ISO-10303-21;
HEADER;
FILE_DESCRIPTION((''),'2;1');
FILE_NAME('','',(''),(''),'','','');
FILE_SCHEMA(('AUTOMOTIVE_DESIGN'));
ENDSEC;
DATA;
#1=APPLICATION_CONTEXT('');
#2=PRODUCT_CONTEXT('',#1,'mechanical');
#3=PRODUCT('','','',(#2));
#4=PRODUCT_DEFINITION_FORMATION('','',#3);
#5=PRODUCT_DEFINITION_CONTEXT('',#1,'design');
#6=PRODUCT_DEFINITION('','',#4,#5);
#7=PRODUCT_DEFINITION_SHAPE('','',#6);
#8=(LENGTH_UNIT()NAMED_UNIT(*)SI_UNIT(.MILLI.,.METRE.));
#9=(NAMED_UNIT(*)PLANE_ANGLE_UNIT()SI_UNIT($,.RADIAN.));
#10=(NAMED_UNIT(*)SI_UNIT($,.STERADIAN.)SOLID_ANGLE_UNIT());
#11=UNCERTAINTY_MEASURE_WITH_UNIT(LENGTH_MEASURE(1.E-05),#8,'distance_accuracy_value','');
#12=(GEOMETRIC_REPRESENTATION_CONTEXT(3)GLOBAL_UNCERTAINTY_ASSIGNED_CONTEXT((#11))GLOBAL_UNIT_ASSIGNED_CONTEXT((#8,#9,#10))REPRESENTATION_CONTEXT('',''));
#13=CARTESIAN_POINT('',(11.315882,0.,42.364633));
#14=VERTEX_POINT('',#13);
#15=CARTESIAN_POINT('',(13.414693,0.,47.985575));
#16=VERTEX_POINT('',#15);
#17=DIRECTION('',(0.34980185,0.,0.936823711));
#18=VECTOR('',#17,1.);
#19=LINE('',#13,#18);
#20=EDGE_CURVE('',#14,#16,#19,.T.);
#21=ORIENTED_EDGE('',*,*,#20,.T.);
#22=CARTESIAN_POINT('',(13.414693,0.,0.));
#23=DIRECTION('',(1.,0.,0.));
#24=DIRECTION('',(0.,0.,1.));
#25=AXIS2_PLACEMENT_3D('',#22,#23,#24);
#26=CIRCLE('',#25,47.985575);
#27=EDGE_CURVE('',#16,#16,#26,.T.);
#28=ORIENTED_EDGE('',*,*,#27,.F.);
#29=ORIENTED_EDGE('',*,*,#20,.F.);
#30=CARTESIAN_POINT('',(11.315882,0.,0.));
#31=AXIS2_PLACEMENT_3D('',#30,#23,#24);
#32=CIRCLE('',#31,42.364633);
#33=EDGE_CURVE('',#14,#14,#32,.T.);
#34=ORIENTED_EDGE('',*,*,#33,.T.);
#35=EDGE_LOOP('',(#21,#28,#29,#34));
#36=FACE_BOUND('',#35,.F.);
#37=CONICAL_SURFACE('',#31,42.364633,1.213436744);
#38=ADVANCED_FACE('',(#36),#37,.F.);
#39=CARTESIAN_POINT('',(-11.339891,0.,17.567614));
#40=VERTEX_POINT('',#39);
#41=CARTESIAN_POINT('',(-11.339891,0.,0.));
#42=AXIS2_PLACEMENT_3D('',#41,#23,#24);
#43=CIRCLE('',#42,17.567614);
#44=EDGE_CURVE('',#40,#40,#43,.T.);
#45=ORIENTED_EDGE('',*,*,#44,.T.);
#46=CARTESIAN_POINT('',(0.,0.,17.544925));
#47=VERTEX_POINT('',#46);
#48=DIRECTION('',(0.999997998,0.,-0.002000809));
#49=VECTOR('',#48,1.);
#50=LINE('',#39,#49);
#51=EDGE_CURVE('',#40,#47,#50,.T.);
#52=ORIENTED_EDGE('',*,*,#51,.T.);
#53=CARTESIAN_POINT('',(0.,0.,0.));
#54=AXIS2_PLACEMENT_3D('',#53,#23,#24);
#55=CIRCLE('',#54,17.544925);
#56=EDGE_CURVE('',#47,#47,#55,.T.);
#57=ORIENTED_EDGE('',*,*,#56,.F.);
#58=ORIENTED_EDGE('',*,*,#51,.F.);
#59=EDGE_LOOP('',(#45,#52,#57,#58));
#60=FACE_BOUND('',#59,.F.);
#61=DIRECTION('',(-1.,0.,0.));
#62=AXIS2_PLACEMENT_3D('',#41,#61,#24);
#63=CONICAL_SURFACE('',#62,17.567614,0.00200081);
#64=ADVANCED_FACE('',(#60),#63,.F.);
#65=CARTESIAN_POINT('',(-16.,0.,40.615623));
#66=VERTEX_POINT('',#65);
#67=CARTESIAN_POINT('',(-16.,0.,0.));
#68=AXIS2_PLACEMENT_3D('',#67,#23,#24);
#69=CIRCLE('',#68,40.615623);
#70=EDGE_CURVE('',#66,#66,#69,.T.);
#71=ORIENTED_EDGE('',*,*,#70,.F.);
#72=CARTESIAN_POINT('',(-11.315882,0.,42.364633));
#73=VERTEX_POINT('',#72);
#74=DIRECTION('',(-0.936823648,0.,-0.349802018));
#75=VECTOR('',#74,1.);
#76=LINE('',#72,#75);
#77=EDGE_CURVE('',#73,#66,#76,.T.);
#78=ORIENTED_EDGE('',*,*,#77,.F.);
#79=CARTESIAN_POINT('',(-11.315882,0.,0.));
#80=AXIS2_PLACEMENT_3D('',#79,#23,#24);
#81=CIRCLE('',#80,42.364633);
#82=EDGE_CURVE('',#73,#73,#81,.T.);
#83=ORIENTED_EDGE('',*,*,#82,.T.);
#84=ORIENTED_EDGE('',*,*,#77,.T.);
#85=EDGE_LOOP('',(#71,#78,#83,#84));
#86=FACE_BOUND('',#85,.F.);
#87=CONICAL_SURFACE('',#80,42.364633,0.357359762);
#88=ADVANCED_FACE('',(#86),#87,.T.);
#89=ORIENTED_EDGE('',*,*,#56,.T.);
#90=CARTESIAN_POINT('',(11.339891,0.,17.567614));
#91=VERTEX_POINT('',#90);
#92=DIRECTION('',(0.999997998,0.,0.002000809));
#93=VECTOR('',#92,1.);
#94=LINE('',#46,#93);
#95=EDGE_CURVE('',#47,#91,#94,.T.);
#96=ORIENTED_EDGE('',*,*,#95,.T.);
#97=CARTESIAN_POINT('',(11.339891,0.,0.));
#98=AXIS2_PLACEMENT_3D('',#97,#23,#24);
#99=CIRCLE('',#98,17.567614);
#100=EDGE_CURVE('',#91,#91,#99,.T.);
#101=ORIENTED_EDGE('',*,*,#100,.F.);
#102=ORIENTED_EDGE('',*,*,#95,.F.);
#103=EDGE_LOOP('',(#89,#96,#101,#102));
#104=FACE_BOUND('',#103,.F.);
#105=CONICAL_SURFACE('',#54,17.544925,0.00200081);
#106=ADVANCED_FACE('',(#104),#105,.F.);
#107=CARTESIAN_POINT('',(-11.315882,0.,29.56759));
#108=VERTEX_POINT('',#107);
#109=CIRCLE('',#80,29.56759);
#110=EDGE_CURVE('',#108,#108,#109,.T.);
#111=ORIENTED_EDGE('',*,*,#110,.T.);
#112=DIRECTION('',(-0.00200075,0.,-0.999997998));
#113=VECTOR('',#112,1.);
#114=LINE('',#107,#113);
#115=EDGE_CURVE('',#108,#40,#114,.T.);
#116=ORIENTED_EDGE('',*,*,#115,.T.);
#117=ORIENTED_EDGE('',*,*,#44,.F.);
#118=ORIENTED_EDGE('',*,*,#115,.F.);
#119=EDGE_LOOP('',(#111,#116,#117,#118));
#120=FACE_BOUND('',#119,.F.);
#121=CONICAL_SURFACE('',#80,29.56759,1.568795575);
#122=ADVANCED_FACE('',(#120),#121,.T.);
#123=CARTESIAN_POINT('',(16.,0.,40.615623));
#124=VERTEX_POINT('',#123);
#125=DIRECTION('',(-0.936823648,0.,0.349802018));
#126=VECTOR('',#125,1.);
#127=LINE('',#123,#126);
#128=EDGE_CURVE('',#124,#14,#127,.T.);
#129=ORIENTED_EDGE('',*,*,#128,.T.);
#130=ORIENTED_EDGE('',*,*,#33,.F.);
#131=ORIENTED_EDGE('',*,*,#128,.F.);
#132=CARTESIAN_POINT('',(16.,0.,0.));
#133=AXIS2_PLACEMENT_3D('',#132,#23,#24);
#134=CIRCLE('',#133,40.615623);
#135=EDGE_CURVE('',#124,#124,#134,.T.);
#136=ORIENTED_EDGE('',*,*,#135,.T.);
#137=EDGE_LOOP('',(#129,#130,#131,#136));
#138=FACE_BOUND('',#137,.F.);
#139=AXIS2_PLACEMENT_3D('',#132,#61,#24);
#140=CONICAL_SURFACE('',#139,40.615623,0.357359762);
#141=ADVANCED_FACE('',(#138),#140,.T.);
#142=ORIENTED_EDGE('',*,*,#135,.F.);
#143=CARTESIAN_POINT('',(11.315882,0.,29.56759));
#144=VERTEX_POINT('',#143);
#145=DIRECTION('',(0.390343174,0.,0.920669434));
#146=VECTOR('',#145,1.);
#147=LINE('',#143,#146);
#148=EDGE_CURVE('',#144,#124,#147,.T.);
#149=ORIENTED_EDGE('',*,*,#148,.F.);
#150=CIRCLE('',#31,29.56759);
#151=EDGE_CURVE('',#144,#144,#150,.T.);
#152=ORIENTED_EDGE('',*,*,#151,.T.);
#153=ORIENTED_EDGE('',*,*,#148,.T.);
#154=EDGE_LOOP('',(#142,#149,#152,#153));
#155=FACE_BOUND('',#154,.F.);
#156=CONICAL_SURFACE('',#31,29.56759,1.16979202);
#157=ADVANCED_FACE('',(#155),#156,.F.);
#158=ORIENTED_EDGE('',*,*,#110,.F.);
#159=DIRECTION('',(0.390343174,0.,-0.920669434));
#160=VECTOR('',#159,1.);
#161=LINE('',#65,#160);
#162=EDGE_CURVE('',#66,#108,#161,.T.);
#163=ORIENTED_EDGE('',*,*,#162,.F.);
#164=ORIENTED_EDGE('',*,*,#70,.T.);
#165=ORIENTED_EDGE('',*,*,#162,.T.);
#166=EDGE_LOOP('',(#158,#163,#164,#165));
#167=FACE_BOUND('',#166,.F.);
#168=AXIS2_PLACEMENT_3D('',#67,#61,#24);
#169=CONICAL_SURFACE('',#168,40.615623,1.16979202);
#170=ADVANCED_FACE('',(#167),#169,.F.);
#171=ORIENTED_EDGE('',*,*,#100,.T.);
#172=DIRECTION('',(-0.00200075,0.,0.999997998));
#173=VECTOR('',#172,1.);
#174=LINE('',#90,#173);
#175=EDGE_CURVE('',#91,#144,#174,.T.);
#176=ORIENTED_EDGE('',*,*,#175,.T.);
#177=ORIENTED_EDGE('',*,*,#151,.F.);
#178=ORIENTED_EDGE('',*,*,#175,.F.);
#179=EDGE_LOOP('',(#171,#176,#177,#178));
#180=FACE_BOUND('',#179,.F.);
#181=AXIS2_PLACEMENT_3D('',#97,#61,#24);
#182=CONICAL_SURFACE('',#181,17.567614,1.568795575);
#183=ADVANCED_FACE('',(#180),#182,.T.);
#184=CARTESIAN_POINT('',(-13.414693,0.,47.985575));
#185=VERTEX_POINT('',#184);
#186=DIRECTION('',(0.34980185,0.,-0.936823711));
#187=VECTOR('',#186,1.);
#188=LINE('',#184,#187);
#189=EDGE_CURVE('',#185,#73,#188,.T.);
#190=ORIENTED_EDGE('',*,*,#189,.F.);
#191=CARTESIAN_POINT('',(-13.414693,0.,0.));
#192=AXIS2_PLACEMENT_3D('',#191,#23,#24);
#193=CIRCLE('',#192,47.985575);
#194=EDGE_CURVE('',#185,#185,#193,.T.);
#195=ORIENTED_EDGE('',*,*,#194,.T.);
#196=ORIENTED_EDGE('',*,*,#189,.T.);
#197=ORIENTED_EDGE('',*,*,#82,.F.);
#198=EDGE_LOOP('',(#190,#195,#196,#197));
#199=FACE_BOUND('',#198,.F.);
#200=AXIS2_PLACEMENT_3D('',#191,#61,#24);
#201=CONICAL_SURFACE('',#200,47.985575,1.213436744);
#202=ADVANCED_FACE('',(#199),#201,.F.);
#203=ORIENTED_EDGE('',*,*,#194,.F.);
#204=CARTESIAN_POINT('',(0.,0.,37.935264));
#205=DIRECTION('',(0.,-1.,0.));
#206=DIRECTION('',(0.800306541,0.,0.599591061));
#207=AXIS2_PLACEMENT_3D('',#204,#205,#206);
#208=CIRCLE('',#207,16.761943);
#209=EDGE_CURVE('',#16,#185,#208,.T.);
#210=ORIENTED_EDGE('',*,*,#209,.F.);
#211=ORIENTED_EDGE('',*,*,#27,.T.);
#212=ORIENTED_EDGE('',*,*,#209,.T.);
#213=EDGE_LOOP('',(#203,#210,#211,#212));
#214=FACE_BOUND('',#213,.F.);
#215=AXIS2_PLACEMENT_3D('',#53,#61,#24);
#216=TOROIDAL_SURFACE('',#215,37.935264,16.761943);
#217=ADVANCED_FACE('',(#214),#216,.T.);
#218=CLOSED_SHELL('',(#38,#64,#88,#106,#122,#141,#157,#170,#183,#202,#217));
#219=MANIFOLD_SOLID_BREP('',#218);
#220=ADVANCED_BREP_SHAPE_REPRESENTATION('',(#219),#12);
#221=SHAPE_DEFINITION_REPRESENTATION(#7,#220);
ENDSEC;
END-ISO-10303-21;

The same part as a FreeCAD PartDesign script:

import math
import FreeCAD as App
import Part
import Sketcher

V = App.Vector

doc = App.newDocument("Part")
body = doc.addObject("PartDesign::Body", "Body")

# Sketch on XZ plane
sketch1 = body.newObject("Sketcher::SketchObject", "Sketch")
sketch1.AttachmentSupport = (doc.getObject("XZ_Plane"), [""])
sketch1.MapMode = "FlatFace"
sketch1.addGeometry([
    Part.LineSegment(V(11.3, 17.6, 0), V(11.3, 29.6, 0)),  # 0
    Part.LineSegment(V(11.3, 29.6, 0), V(16, 40.6, 0)),  # 1
    Part.LineSegment(V(16, 40.6, 0), V(11.3, 42.4, 0)),  # 2
    Part.LineSegment(V(11.3, 42.4, 0), V(13.4, 48, 0)),  # 3
    Part.ArcOfCircle(Part.Circle(V(0, 37.9, 0), V(0, 0, 1), 16.8), math.radians(37), math.radians(143)),  # 4
    Part.LineSegment(V(-13.4, 48, 0), V(-11.3, 42.4, 0)),  # 5
    Part.LineSegment(V(-11.3, 42.4, 0), V(-16, 40.6, 0)),  # 6
    Part.LineSegment(V(-16, 40.6, 0), V(-11.3, 29.6, 0)),  # 7
    Part.LineSegment(V(-11.3, 29.6, 0), V(-11.3, 17.6, 0)),  # 8
    Part.LineSegment(V(-11.3, 17.6, 0), V(0, 17.5, 0)),  # 9
    Part.LineSegment(V(0, 17.5, 0), V(11.3, 17.6, 0)),  # 10
], False)
sketch1.addConstraint([
    Sketcher.Constraint("Coincident", 0, 2, 1, 1),
    Sketcher.Constraint("Coincident", 1, 2, 2, 1),
    Sketcher.Constraint("Coincident", 2, 2, 3, 1),
    Sketcher.Constraint("Coincident", 3, 2, 4, 1),
    Sketcher.Constraint("Coincident", 4, 2, 5, 1),
    Sketcher.Constraint("Coincident", 5, 2, 6, 1),
    Sketcher.Constraint("Coincident", 6, 2, 7, 1),
    Sketcher.Constraint("Coincident", 7, 2, 8, 1),
    Sketcher.Constraint("Coincident", 8, 2, 9, 1),
    Sketcher.Constraint("Coincident", 9, 2, 10, 1),
    Sketcher.Constraint("Coincident", 10, 2, 0, 1),
    Sketcher.Constraint("Symmetric", 3, 2, 4, 2, -2),
    Sketcher.Constraint("Symmetric", 2, 2, 5, 2, -2),
    Sketcher.Constraint("Symmetric", 1, 2, 6, 2, -2),
    Sketcher.Constraint("Symmetric", 0, 2, 7, 2, -2),
    Sketcher.Constraint("Symmetric", 8, 2, 10, 2, -2),
    Sketcher.Constraint("PointOnObject", 9, 2, -2),
    Sketcher.Constraint("Perpendicular", 2, 3),
    Sketcher.Constraint("Perpendicular", 8, 9),
    Sketcher.Constraint("Vertical", 0, 2, 2, 2),
    Sketcher.Constraint("Equal", 0, 1),
    Sketcher.Constraint("Distance", 0, 12.0),
    Sketcher.Constraint("Distance", 2, 5.0),
    Sketcher.Constraint("Distance", 3, 6.0),
    Sketcher.Constraint("DistanceX", -1, 1, 1, 2, 16.0),
    Sketcher.Constraint("Radius", 4, 16.761943),
    Sketcher.Constraint("DistanceY", -1, 1, 0, 2, 29.56759),
    Sketcher.Constraint("DistanceX", 8, 2, -1, 1, 11.339891),
    Sketcher.Constraint("DistanceY", 4, 3, 1, 2, 2.680359),
])
revolution = body.newObject("PartDesign::Revolution", "Revolution")
revolution.Profile = sketch1
revolution.ReferenceAxis = (sketch1, ["H_Axis"])
revolution.Angle = 360

doc.recompute()
